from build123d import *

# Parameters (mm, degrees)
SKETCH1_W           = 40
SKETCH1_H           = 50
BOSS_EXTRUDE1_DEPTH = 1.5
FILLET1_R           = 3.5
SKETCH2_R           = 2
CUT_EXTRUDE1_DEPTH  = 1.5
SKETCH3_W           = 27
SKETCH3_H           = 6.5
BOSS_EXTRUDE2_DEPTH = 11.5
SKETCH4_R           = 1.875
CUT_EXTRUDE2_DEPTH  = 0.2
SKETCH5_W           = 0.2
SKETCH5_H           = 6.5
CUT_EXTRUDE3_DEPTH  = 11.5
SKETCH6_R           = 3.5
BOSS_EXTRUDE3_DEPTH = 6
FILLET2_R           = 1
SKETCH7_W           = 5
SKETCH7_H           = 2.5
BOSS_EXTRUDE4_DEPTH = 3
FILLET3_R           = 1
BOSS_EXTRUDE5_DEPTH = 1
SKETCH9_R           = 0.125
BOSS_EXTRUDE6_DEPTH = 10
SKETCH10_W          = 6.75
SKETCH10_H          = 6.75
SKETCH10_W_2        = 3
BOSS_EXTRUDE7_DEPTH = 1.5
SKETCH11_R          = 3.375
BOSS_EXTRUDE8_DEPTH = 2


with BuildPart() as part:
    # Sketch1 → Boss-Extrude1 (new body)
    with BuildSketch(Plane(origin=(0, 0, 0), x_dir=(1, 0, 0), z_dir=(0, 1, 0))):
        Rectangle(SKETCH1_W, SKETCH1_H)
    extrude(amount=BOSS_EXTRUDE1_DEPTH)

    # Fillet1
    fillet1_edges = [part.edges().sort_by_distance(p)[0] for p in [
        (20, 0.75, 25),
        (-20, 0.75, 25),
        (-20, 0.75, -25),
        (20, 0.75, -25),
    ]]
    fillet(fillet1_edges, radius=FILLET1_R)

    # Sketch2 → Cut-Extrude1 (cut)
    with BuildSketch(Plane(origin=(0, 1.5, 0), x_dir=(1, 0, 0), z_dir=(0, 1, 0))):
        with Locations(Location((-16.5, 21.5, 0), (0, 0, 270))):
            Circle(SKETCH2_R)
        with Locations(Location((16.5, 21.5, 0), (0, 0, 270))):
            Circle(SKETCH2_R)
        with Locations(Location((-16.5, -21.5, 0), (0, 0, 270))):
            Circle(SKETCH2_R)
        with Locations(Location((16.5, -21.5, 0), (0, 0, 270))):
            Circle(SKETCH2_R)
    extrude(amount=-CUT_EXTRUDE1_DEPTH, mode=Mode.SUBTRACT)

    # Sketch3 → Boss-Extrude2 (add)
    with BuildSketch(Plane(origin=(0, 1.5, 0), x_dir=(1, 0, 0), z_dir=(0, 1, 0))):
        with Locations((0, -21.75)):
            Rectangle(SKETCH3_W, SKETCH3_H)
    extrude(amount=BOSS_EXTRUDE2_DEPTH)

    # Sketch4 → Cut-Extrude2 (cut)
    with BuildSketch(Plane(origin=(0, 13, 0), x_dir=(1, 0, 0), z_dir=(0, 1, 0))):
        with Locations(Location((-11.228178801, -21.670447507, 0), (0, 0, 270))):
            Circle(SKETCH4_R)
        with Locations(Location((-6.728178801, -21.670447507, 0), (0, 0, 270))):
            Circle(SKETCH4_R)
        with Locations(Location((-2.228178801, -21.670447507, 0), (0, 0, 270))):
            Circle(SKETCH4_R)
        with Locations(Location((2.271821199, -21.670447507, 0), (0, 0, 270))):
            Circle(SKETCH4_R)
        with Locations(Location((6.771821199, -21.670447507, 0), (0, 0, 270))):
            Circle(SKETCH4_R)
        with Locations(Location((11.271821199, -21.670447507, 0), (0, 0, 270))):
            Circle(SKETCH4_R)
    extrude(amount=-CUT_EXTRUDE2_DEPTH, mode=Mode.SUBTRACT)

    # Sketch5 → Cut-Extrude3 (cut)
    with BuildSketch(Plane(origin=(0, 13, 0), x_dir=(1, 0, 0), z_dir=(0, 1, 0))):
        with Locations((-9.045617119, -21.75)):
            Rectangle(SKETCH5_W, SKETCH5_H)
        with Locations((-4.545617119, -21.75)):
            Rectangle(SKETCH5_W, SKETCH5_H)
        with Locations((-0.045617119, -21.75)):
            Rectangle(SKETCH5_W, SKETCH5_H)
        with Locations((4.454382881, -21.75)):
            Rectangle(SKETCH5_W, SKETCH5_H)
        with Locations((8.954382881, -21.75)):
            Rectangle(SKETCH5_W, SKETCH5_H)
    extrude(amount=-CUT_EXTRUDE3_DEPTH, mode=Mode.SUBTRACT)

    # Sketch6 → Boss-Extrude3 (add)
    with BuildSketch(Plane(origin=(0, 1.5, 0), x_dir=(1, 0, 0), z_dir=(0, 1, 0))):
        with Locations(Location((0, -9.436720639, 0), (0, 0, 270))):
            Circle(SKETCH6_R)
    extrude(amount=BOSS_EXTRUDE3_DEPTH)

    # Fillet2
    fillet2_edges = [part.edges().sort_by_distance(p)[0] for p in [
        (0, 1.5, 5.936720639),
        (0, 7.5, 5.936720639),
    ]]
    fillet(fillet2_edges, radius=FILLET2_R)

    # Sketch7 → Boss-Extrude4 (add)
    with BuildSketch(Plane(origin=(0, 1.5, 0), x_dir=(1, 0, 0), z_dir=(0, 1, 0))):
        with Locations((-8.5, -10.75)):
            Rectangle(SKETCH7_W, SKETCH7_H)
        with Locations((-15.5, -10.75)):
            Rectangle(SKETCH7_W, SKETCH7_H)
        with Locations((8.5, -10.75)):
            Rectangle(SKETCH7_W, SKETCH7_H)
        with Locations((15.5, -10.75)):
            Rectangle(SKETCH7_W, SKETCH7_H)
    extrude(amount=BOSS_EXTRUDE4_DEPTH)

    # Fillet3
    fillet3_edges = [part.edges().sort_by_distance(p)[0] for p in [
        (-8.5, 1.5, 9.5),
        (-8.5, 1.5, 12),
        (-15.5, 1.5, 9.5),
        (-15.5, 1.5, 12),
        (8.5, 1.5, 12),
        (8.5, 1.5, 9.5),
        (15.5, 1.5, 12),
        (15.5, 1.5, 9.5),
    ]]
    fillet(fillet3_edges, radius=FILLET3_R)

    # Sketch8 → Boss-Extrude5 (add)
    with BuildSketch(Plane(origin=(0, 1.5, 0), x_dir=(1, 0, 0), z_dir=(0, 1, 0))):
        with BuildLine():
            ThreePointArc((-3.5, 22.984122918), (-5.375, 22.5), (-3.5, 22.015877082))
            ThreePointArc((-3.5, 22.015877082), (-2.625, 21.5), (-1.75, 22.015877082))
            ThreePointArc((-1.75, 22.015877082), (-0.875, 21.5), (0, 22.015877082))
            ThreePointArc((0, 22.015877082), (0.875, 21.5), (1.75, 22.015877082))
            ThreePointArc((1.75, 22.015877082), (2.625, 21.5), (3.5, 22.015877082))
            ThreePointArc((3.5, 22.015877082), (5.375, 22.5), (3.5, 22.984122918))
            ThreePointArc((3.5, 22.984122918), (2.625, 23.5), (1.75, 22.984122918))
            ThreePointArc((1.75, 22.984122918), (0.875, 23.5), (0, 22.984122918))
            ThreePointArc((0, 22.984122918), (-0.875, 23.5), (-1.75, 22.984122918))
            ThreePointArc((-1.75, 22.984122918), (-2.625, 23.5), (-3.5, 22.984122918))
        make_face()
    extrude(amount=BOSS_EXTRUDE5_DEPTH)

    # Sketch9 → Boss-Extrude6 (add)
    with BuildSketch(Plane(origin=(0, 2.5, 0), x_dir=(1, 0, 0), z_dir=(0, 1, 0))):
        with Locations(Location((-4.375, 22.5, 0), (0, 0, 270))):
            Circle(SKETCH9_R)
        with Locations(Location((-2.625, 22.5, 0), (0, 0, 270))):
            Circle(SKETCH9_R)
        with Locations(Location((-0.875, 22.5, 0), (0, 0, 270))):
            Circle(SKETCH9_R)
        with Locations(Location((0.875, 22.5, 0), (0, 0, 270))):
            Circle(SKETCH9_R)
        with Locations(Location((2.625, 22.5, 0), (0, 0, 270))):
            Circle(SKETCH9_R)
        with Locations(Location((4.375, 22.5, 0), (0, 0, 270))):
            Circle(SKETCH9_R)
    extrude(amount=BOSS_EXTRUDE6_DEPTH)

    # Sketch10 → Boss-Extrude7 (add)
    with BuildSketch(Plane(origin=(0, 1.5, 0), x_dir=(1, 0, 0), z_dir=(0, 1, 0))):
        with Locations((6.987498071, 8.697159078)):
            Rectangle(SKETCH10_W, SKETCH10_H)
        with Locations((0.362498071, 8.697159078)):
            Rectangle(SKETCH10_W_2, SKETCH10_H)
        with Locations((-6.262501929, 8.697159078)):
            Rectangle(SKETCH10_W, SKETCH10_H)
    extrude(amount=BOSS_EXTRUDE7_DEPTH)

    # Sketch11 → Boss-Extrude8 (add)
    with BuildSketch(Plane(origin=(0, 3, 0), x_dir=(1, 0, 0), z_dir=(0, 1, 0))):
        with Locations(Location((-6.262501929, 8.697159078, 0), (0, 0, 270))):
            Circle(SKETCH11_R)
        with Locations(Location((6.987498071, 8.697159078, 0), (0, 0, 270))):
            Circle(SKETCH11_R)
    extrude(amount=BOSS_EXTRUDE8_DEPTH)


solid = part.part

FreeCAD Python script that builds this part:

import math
import FreeCAD as App
import Part
import Sketcher


def edges_at(feature, points):
    """Names of the edges that pass closest to the given points."""
    edges = feature.Shape.Edges
    near = lambda p: min(range(len(edges)), key=lambda i: edges[i].distToShape(Part.Vertex(*p))[0])
    return sorted({f"Edge{near(p) + 1}" for p in points})

doc = App.newDocument("Part")
body = doc.addObject("PartDesign::Body", "Body")

# Sketch on XZ plane
sketch1 = doc.addObject("Sketcher::SketchObject", "Sketch")
body.addObject(sketch1)
sketch1.AttachmentSupport = (doc.XZ_Plane, [""])
sketch1.MapMode = "FlatFace"
sketch1.addGeometry([
    Part.LineSegment(App.Vector(-20, -25, 0), App.Vector(-20, 25, 0)),
    Part.LineSegment(App.Vector(-20, 25, 0), App.Vector(20, 25, 0)),
    Part.LineSegment(App.Vector(20, 25, 0), App.Vector(20, -25, 0)),
    Part.LineSegment(App.Vector(20, -25, 0), App.Vector(-20, -25, 0)),
], False)
sketch1.addConstraint([
    Sketcher.Constraint("Coincident", 0, 2, 1, 1),
    Sketcher.Constraint("Coincident", 1, 2, 2, 1),
    Sketcher.Constraint("Coincident", 2, 2, 3, 1),
    Sketcher.Constraint("Coincident", 3, 2, 0, 1),
    Sketcher.Constraint("Vertical", 0),
    Sketcher.Constraint("Horizontal", 1),
    Sketcher.Constraint("Vertical", 2),
    Sketcher.Constraint("Horizontal", 3),
    Sketcher.Constraint("Symmetric", 0, 2, 2, 2, -1, 1),
    Sketcher.Constraint("DistanceX", 1, 1, 1, 2, 40.0),
    Sketcher.Constraint("DistanceY", 0, 1, 0, 2, 50.0),
])
pad1 = doc.addObject("PartDesign::Pad", "Pad")
body.addObject(pad1)
pad1.Profile = sketch1
pad1.Length = 1.5
pad1.Reversed = True
doc.recompute()

fillet = doc.addObject("PartDesign::Fillet", "Fillet")
body.addObject(fillet)
fillet.Base = (pad1, edges_at(pad1, [
    (20, 0.75, 25),
    (-20, 0.75, 25),
    (-20, 0.75, -25),
    (20, 0.75, -25),
]))
fillet.Radius = 3.5

# Sketch on XZ plane
sketch2 = doc.addObject("Sketcher::SketchObject", "Sketch001")
body.addObject(sketch2)
sketch2.AttachmentSupport = (doc.XZ_Plane, [""])
sketch2.MapMode = "FlatFace"
sketch2.AttachmentOffset = App.Placement(App.Vector(0, 0, -1.5), App.Rotation())
sketch2.addGeometry([
    Part.Circle(App.Vector(-16.5, -21.5, 0), App.Vector(0, 0, 1), 2),
    Part.Circle(App.Vector(16.5, -21.5, 0), App.Vector(0, 0, 1), 2),
    Part.Circle(App.Vector(-16.5, 21.5, 0), App.Vector(0, 0, 1), 2),
    Part.Circle(App.Vector(16.5, 21.5, 0), App.Vector(0, 0, 1), 2),
], False)
sketch2.addConstraint([
    Sketcher.Constraint("Equal", 0, 1),
    Sketcher.Constraint("Equal", 1, 2),
    Sketcher.Constraint("Equal", 2, 3),
    Sketcher.Constraint("Symmetric", 1, 3, 2, 3, -1, 1),
    Sketcher.Constraint("Symmetric", 0, 3, 3, 3, -1, 1),
    Sketcher.Constraint("Symmetric", 0, 3, 1, 3, -2),
    Sketcher.Constraint("Diameter", 0, 4.0),
    Sketcher.Constraint("DistanceX", 0, 3, 1, 3, 33.0),
    Sketcher.Constraint("DistanceY", 0, 3, 2, 3, 43.0),
])
pocket1 = doc.addObject("PartDesign::Pocket", "Pocket")
body.addObject(pocket1)
pocket1.Profile = sketch2
pocket1.Length = 1.5
pocket1.Reversed = True

# Sketch on XZ plane
sketch3 = doc.addObject("Sketcher::SketchObject", "Sketch002")
body.addObject(sketch3)
sketch3.AttachmentSupport = (doc.XZ_Plane, [""])
sketch3.MapMode = "FlatFace"
sketch3.AttachmentOffset = App.Placement(App.Vector(0, 0, -1.5), App.Rotation())
sketch3.addGeometry([
    Part.LineSegment(App.Vector(-14, 18, 0), App.Vector(-14, 25, 0)),
    Part.LineSegment(App.Vector(-14, 25, 0), App.Vector(14, 25, 0)),
    Part.LineSegment(App.Vector(14, 25, 0), App.Vector(14, 18, 0)),
    Part.LineSegment(App.Vector(14, 18, 0), App.Vector(-14, 18, 0)),
], False)
sketch3.addConstraint([
    Sketcher.Constraint("Coincident", 0, 2, 1, 1),
    Sketcher.Constraint("Coincident", 1, 2, 2, 1),
    Sketcher.Constraint("Coincident", 2, 2, 3, 1),
    Sketcher.Constraint("Coincident", 3, 2, 0, 1),
    Sketcher.Constraint("Vertical", 0),
    Sketcher.Constraint("Horizontal", 1),
    Sketcher.Constraint("Vertical", 2),
    Sketcher.Constraint("Horizontal", 3),
    Sketcher.Constraint("DistanceX", 1, 1, 1, 2, 27.0),
    Sketcher.Constraint("DistanceY", 0, 1, 0, 2, 6.5),
    Sketcher.Constraint("DistanceY", -1, 1, 0, 2, 25.0),
    Sketcher.Constraint("DistanceX", 0, 2, -1, 1, 13.5),
])
pad2 = doc.addObject("PartDesign::Pad", "Pad001")
body.addObject(pad2)
pad2.Profile = sketch3
pad2.Length = 11.5
pad2.Reversed = True

# Sketch on XZ plane
sketch4 = doc.addObject("Sketcher::SketchObject", "Sketch003")
body.addObject(sketch4)
sketch4.AttachmentSupport = (doc.XZ_Plane, [""])
sketch4.MapMode = "FlatFace"
sketch4.AttachmentOffset = App.Placement(App.Vector(0, 0, -13), App.Rotation())
sketch4.addGeometry([
    Part.Circle(App.Vector(-11.2, 21.7, 0), App.Vector(0, 0, 1), 1.9),  # 0
    Part.Circle(App.Vector(-6.7, 21.7, 0), App.Vector(0, 0, 1), 1.9),  # 1
    Part.Circle(App.Vector(-2.2, 21.7, 0), App.Vector(0, 0, 1), 1.9),  # 2
    Part.Circle(App.Vector(2.3, 21.7, 0), App.Vector(0, 0, 1), 1.9),  # 3
    Part.Circle(App.Vector(6.8, 21.7, 0), App.Vector(0, 0, 1), 1.9),  # 4
    Part.Circle(App.Vector(11.3, 21.7, 0), App.Vector(0, 0, 1), 1.9),  # 5
], False)
sketch4.addConstraint([
    Sketcher.Constraint("Equal", 0, 1),
    Sketcher.Constraint("Equal", 1, 2),
    Sketcher.Constraint("Equal", 2, 3),
    Sketcher.Constraint("Equal", 3, 4),
    Sketcher.Constraint("Equal", 4, 5),
    Sketcher.Constraint("Horizontal", 0, 3, 1, 3),
    Sketcher.Constraint("Horizontal", 1, 3, 2, 3),
    Sketcher.Constraint("Horizontal", 2, 3, 3, 3),
    Sketcher.Constraint("Horizontal", 3, 3, 4, 3),
    Sketcher.Constraint("Horizontal", 4, 3, 5, 3),
    Sketcher.Constraint("Diameter", 0, 3.75),
    Sketcher.Constraint("DistanceX", 0, 3, 2, 3, 9.0),
    Sketcher.Constraint("DistanceX", 1, 3, 3, 3, 9.0),
    Sketcher.Constraint("DistanceX", 2, 3, 4, 3, 9.0),
    Sketcher.Constraint("DistanceX", 3, 3, 5, 3, 9.0),
    Sketcher.Constraint("DistanceX", 0, 3, 1, 3, 4.5),
    Sketcher.Constraint("DistanceX", 0, 3, -1, 1, 11.228179),
    Sketcher.Constraint("DistanceY", -1, 1, 0, 3, 21.670448),
])
pocket2 = doc.addObject("PartDesign::Pocket", "Pocket001")
body.addObject(pocket2)
pocket2.Profile = sketch4
pocket2.Length = 0.2
pocket2.Reversed = True

# Sketch on XZ plane
sketch5 = doc.addObject("Sketcher::SketchObject", "Sketch004")
body.addObject(sketch5)
sketch5.AttachmentSupport = (doc.XZ_Plane, [""])
sketch5.MapMode = "FlatFace"
sketch5.AttachmentOffset = App.Placement(App.Vector(0, 0, -13), App.Rotation())
sketch5.addGeometry([
    Part.LineSegment(App.Vector(-9.15, 18.5, 0), App.Vector(-9.15, 25, 0)),  # 0
    Part.LineSegment(App.Vector(-9.15, 25, 0), App.Vector(-8.95, 25, 0)),  # 1
    Part.LineSegment(App.Vector(-8.95, 25, 0), App.Vector(-8.95, 18.5, 0)),  # 2
    Part.LineSegment(App.Vector(-8.95, 18.5, 0), App.Vector(-9.15, 18.5, 0)),  # 3
    Part.LineSegment(App.Vector(-4.65, 18.5, 0), App.Vector(-4.65, 25, 0)),  # 4
    Part.LineSegment(App.Vector(-4.65, 25, 0), App.Vector(-4.45, 25, 0)),  # 5
    Part.LineSegment(App.Vector(-4.45, 25, 0), App.Vector(-4.45, 18.5, 0)),  # 6
    Part.LineSegment(App.Vector(-4.45, 18.5, 0), App.Vector(-4.65, 18.5, 0)),  # 7
    Part.LineSegment(App.Vector(-0.15, 18.5, 0), App.Vector(-0.15, 25, 0)),  # 8
    Part.LineSegment(App.Vector(-0.15, 25, 0), App.Vector(0.05, 25, 0)),  # 9
    Part.LineSegment(App.Vector(0.05, 25, 0), App.Vector(0.05, 18.5, 0)),  # 10
    Part.LineSegment(App.Vector(0.05, 18.5, 0), App.Vector(-0.15, 18.5, 0)),  # 11
    Part.LineSegment(App.Vector(4.35, 18.5, 0), App.Vector(4.35, 25, 0)),  # 12
    Part.LineSegment(App.Vector(4.35, 25, 0), App.Vector(4.55, 25, 0)),  # 13
    Part.LineSegment(App.Vector(4.55, 25, 0), App.Vector(4.55, 18.5, 0)),  # 14
    Part.LineSegment(App.Vector(4.55, 18.5, 0), App.Vector(4.35, 18.5, 0)),  # 15
    Part.LineSegment(App.Vector(8.85, 18.5, 0), App.Vector(8.85, 25, 0)),  # 16
    Part.LineSegment(App.Vector(8.85, 25, 0), App.Vector(9.05, 25, 0)),  # 17
    Part.LineSegment(App.Vector(9.05, 25, 0), App.Vector(9.05, 18.5, 0)),  # 18
    Part.LineSegment(App.Vector(9.05, 18.5, 0), App.Vector(8.85, 18.5, 0)),  # 19
], False)
sketch5.addConstraint([
    Sketcher.Constraint("Coincident", 0, 2, 1, 1),
    Sketcher.Constraint("Coincident", 1, 2, 2, 1),
    Sketcher.Constraint("Coincident", 2, 2, 3, 1),
    Sketcher.Constraint("Coincident", 3, 2, 0, 1),
    Sketcher.Constraint("Coincident", 4, 2, 5, 1),
    Sketcher.Constraint("Coincident", 5, 2, 6, 1),
    Sketcher.Constraint("Coincident", 6, 2, 7, 1),
    Sketcher.Constraint("Coincident", 7, 2, 4, 1),
    Sketcher.Constraint("Coincident", 8, 2, 9, 1),
    Sketcher.Constraint("Coincident", 9, 2, 10, 1),
    Sketcher.Constraint("Coincident", 10, 2, 11, 1),
    Sketcher.Constraint("Coincident", 11, 2, 8, 1),
    Sketcher.Constraint("Coincident", 12, 2, 13, 1),
    Sketcher.Constraint("Coincident", 13, 2, 14, 1),
    Sketcher.Constraint("Coincident", 14, 2, 15, 1),
    Sketcher.Constraint("Coincident", 15, 2, 12, 1),
    Sketcher.Constraint("Coincident", 16, 2, 17, 1),
    Sketcher.Constraint("Coincident", 17, 2, 18, 1),
    Sketcher.Constraint("Coincident", 18, 2, 19, 1),
    Sketcher.Constraint("Coincident", 19, 2, 16, 1),
    Sketcher.Constraint("Vertical", 0),
    Sketcher.Constraint("Horizontal", 1),
    Sketcher.Constraint("Vertical", 2),
    Sketcher.Constraint("Horizontal", 3),
    Sketcher.Constraint("Vertical", 4),
    Sketcher.Constraint("Horizontal", 5),
    Sketcher.Constraint("Vertical", 6),
    Sketcher.Constraint("Horizontal", 7),
    Sketcher.Constraint("Vertical", 8),
    Sketcher.Constraint("Horizontal", 9),
    Sketcher.Constraint("Vertical", 10),
    Sketcher.Constraint("Horizontal", 11),
    Sketcher.Constraint("Vertical", 12),
    Sketcher.Constraint("Horizontal", 13),
    Sketcher.Constraint("Vertical", 14),
    Sketcher.Constraint("Horizontal", 15),
    Sketcher.Constraint("Vertical", 16),
    Sketcher.Constraint("Horizontal", 17),
    Sketcher.Constraint("Vertical", 18),
    Sketcher.Constraint("Horizontal", 19),
    Sketcher.Constraint("Horizontal", 1, 2, 4, 2),
    Sketcher.Constraint("Horizontal", 3, 2, 6, 2),
    Sketcher.Constraint("Horizontal", 5, 2, 8, 2),
    Sketcher.Constraint("Horizontal", 7, 2, 10, 2),
    Sketcher.Constraint("Horizontal", 9, 2, 12, 2),
    Sketcher.Constraint("Horizontal", 11, 2, 14, 2),
    Sketcher.Constraint("Horizontal", 13, 2, 16, 2),
    Sketcher.Constraint("Horizontal", 15, 2, 18, 2),
    Sketcher.Constraint("Equal", 3, 5),
    Sketcher.Constraint("Equal", 7, 9),
    Sketcher.Constraint("Equal", 11, 13),
    Sketcher.Constraint("Equal", 15, 17),
    Sketcher.Constraint("DistanceX", 1, 1, 1, 2, 0.2),
    Sketcher.Constraint("DistanceY", 0, 1, 0, 2, 6.5),
    Sketcher.Constraint("DistanceY", -1, 1, 0, 2, 25.0),
    Sketcher.Constraint("DistanceX", 1, 2, 4, 2, 4.3),
    Sketcher.Constraint("DistanceX", 5, 2, 8, 2, 4.3),
    Sketcher.Constraint("DistanceX", 9, 2, 12, 2, 4.3),
    Sketcher.Constraint("DistanceX", 13, 2, 16, 2, 4.3),
    Sketcher.Constraint("DistanceX", 0, 2, -1, 1, 9.145617),
])
pocket3 = doc.addObject("PartDesign::Pocket", "Pocket002")
body.addObject(pocket3)
pocket3.Profile = sketch5
pocket3.Length = 11.5
pocket3.Reversed = True

# Sketch on XZ plane
sketch6 = doc.addObject("Sketcher::SketchObject", "Sketch005")
body.addObject(sketch6)
sketch6.AttachmentSupport = (doc.XZ_Plane, [""])
sketch6.MapMode = "FlatFace"
sketch6.AttachmentOffset = App.Placement(App.Vector(0, 0, -1.5), App.Rotation())
sketch6.addGeometry(Part.Circle(App.Vector(0, 9.4, 0), App.Vector(0, 0, 1), 3.5), False)
sketch6.addConstraint([
    Sketcher.Constraint("PointOnObject", 0, 3, -2),
    Sketcher.Constraint("Diameter", 0, 7.0),
    Sketcher.Constraint("DistanceY", -1, 1, 0, 3, 9.436721),
])
pad3 = doc.addObject("PartDesign::Pad", "Pad002")
body.addObject(pad3)
pad3.Profile = sketch6
pad3.Length = 6
pad3.Reversed = True
doc.recompute()

fillet2 = doc.addObject("PartDesign::Fillet", "Fillet001")
body.addObject(fillet2)
fillet2.Base = (pad3, edges_at(pad3, [(0, 1.5, 5.937), (0, 7.5, 5.937)]))
fillet2.Radius = 1

# Sketch on XZ plane
sketch7 = doc.addObject("Sketcher::SketchObject", "Sketch006")
body.addObject(sketch7)
sketch7.AttachmentSupport = (doc.XZ_Plane, [""])
sketch7.MapMode = "FlatFace"
sketch7.AttachmentOffset = App.Placement(App.Vector(0, 0, -1.5), App.Rotation())
sketch7.addGeometry([
    Part.LineSegment(App.Vector(-11, 9.5, 0), App.Vector(-11, 12, 0)),  # 0
    Part.LineSegment(App.Vector(-11, 12, 0), App.Vector(-6, 12, 0)),  # 1
    Part.LineSegment(App.Vector(-6, 12, 0), App.Vector(-6, 9.5, 0)),  # 2
    Part.LineSegment(App.Vector(-6, 9.5, 0), App.Vector(-11, 9.5, 0)),  # 3
    Part.LineSegment(App.Vector(-18, 9.5, 0), App.Vector(-18, 12, 0)),  # 4
    Part.LineSegment(App.Vector(-18, 12, 0), App.Vector(-13, 12, 0)),  # 5
    Part.LineSegment(App.Vector(-13, 12, 0), App.Vector(-13, 9.5, 0)),  # 6
    Part.LineSegment(App.Vector(-13, 9.5, 0), App.Vector(-18, 9.5, 0)),  # 7
    Part.LineSegment(App.Vector(6, 9.5, 0), App.Vector(6, 12, 0)),  # 8
    Part.LineSegment(App.Vector(6, 12, 0), App.Vector(11, 12, 0)),  # 9
    Part.LineSegment(App.Vector(11, 12, 0), App.Vector(11, 9.5, 0)),  # 10
    Part.LineSegment(App.Vector(11, 9.5, 0), App.Vector(6, 9.5, 0)),  # 11
    Part.LineSegment(App.Vector(13, 9.5, 0), App.Vector(13, 12, 0)),  # 12
    Part.LineSegment(App.Vector(13, 12, 0), App.Vector(18, 12, 0)),  # 13
    Part.LineSegment(App.Vector(18, 12, 0), App.Vector(18, 9.5, 0)),  # 14
    Part.LineSegment(App.Vector(18, 9.5, 0), App.Vector(13, 9.5, 0)),  # 15
], False)
sketch7.addConstraint([
    Sketcher.Constraint("Coincident", 0, 2, 1, 1),
    Sketcher.Constraint("Coincident", 1, 2, 2, 1),
    Sketcher.Constraint("Coincident", 2, 2, 3, 1),
    Sketcher.Constraint("Coincident", 3, 2, 0, 1),
    Sketcher.Constraint("Coincident", 4, 2, 5, 1),
    Sketcher.Constraint("Coincident", 5, 2, 6, 1),
    Sketcher.Constraint("Coincident", 6, 2, 7, 1),
    Sketcher.Constraint("Coincident", 7, 2, 4, 1),
    Sketcher.Constraint("Coincident", 8, 2, 9, 1),
    Sketcher.Constraint("Coincident", 9, 2, 10, 1),
    Sketcher.Constraint("Coincident", 10, 2, 11, 1),
    Sketcher.Constraint("Coincident", 11, 2, 8, 1),
    Sketcher.Constraint("Coincident", 12, 2, 13, 1),
    Sketcher.Constraint("Coincident", 13, 2, 14, 1),
    Sketcher.Constraint("Coincident", 14, 2, 15, 1),
    Sketcher.Constraint("Coincident", 15, 2, 12, 1),
    Sketcher.Constraint("Vertical", 0),
    Sketcher.Constraint("Horizontal", 1),
    Sketcher.Constraint("Vertical", 2),
    Sketcher.Constraint("Horizontal", 3),
    Sketcher.Constraint("Vertical", 4),
    Sketcher.Constraint("Horizontal", 5),
    Sketcher.Constraint("Vertical", 6),
    Sketcher.Constraint("Horizontal", 7),
    Sketcher.Constraint("Vertical", 8),
    Sketcher.Constraint("Horizontal", 9),
    Sketcher.Constraint("Vertical", 10),
    Sketcher.Constraint("Horizontal", 11),
    Sketcher.Constraint("Vertical", 12),
    Sketcher.Constraint("Horizontal", 13),
    Sketcher.Constraint("Vertical", 14),
    Sketcher.Constraint("Horizontal", 15),
    Sketcher.Constraint("Symmetric", 1, 2, 8, 2, -2),
    Sketcher.Constraint("Symmetric", 3, 2, 10, 2, -2),
    Sketcher.Constraint("Symmetric", 5, 2, 12, 2, -2),
    Sketcher.Constraint("Symmetric", 7, 2, 14, 2, -2),
    Sketcher.Constraint("Horizontal", 1, 2, 4, 2),
    Sketcher.Constraint("Horizontal", 3, 2, 6, 2),
    Sketcher.Constraint("Equal", 3, 5),
    Sketcher.Constraint("DistanceX", 1, 1, 1, 2, 5.0),
    Sketcher.Constraint("DistanceY", 0, 1, 0, 2, 2.5),
    Sketcher.Constraint("DistanceX", 0, 2, -1, 1, 11.0),
    Sketcher.Constraint("DistanceY", -1, 1, 0, 2, 12.0),
    Sketcher.Constraint("DistanceX", 4, 2, -1, 1, 18.0),
])
pad4 = doc.addObject("PartDesign::Pad", "Pad003")
body.addObject(pad4)
pad4.Profile = sketch7
pad4.Length = 3
pad4.Reversed = True
doc.recompute()

fillet3 = doc.addObject("PartDesign::Fillet", "Fillet002")
body.addObject(fillet3)
fillet3.Base = (pad4, edges_at(pad4, [
    (-8.5, 1.5, 9.5),
    (-8.5, 1.5, 12),
    (-15.5, 1.5, 9.5),
    (-15.5, 1.5, 12),
    (8.5, 1.5, 12),
    (8.5, 1.5, 9.5),
    (15.5, 1.5, 12),
    (15.5, 1.5, 9.5),
]))
fillet3.Radius = 1

# Sketch on XZ plane
sketch8 = doc.addObject("Sketcher::SketchObject", "Sketch007")
body.addObject(sketch8)
sketch8.AttachmentSupport = (doc.XZ_Plane, [""])
sketch8.MapMode = "FlatFace"
sketch8.AttachmentOffset = App.Placement(App.Vector(0, 0, -1.5), App.Rotation())
sketch8.addGeometry([
    Part.ArcOfCircle(Part.Circle(App.Vector(-4.4, -22.5, 0), App.Vector(0, 0, 1), 1), math.radians(29), math.radians(331)),  # 0
    Part.ArcOfCircle(Part.Circle(App.Vector(-2.6, -22.5, 0), App.Vector(0, 0, 1), 1), math.radians(29), math.radians(151)),  # 1
    Part.ArcOfCircle(Part.Circle(App.Vector(-0.9, -22.5, 0), App.Vector(0, 0, 1), 1), math.radians(29), math.radians(151)),  # 2
    Part.ArcOfCircle(Part.Circle(App.Vector(0.9, -22.5, 0), App.Vector(0, 0, 1), 1), math.radians(29), math.radians(151)),  # 3
    Part.ArcOfCircle(Part.Circle(App.Vector(2.6, -22.5, 0), App.Vector(0, 0, 1), 1), math.radians(29), math.radians(151)),  # 4
    Part.ArcOfCircle(Part.Circle(App.Vector(4.4, -22.5, 0), App.Vector(0, 0, 1), 1), math.radians(-151), math.radians(151)),  # 5
    Part.ArcOfCircle(Part.Circle(App.Vector(2.6, -22.5, 0), App.Vector(0, 0, 1), 1), math.radians(-151), math.radians(-29)),  # 6
    Part.ArcOfCircle(Part.Circle(App.Vector(0.9, -22.5, 0), App.Vector(0, 0, 1), 1), math.radians(-151), math.radians(-29)),  # 7
    Part.ArcOfCircle(Part.Circle(App.Vector(-0.9, -22.5, 0), App.Vector(0, 0, 1), 1), math.radians(-151), math.radians(-29)),  # 8
    Part.ArcOfCircle(Part.Circle(App.Vector(-2.6, -22.5, 0), App.Vector(0, 0, 1), 1), math.radians(-151), math.radians(-29)),  # 9
], False)
sketch8.addConstraint([
    Sketcher.Constraint("Coincident", 0, 1, 1, 2),
    Sketcher.Constraint("Coincident", 1, 1, 2, 2),
    Sketcher.Constraint("Coincident", 2, 1, 3, 2),
    Sketcher.Constraint("Coincident", 3, 1, 4, 2),
    Sketcher.Constraint("Coincident", 4, 1, 5, 2),
    Sketcher.Constraint("Coincident", 5, 1, 6, 2),
    Sketcher.Constraint("Coincident", 6, 1, 7, 2),
    Sketcher.Constraint("Coincident", 7, 1, 8, 2),
    Sketcher.Constraint("Coincident", 8, 1, 9, 2),
    Sketcher.Constraint("Coincident", 9, 1, 0, 2),
    Sketcher.Constraint("Coincident", 6, 3, 4, 3),
    Sketcher.Constraint("Coincident", 7, 3, 3, 3),
    Sketcher.Constraint("Coincident", 8, 3, 2, 3),
    Sketcher.Constraint("Coincident", 9, 3, 1, 3),
    Sketcher.Constraint("Equal", 0, 1),
    Sketcher.Constraint("Equal", 1, 2),
    Sketcher.Constraint("Equal", 2, 3),
    Sketcher.Constraint("Equal", 3, 4),
    Sketcher.Constraint("Equal", 4, 5),
    Sketcher.Constraint("Equal", 5, 6),
    Sketcher.Constraint("Equal", 6, 7),
    Sketcher.Constraint("Equal", 7, 8),
    Sketcher.Constraint("Equal", 8, 9),
    Sketcher.Constraint("Symmetric", 2, 3, 3, 3, -2),
    Sketcher.Constraint("Symmetric", 1, 3, 4, 3, -2),
    Sketcher.Constraint("Symmetric", 0, 3, 5, 3, -2),
    Sketcher.Constraint("Horizontal", 0, 3, 1, 3),
    Sketcher.Constraint("Horizontal", 1, 3, 2, 3),
    Sketcher.Constraint("Horizontal", 0, 1, 1, 1),
    Sketcher.Constraint("Horizontal", 1, 1, 2, 1),
    Sketcher.Constraint("Radius", 0, 1.0),
    Sketcher.Constraint("DistanceX", 0, 3, 4, 3, 7.0),
    Sketcher.Constraint("DistanceY", 0, 3, -1, 1, 22.5),
])
pad5 = doc.addObject("PartDesign::Pad", "Pad004")
body.addObject(pad5)
pad5.Profile = sketch8
pad5.Length = 1
pad5.Reversed = True

# Sketch on XZ plane
sketch9 = doc.addObject("Sketcher::SketchObject", "Sketch008")
body.addObject(sketch9)
sketch9.AttachmentSupport = (doc.XZ_Plane, [""])
sketch9.MapMode = "FlatFace"
sketch9.AttachmentOffset = App.Placement(App.Vector(0, 0, -2.5), App.Rotation())
sketch9.addGeometry([
    Part.Circle(App.Vector(-4.38, -22.5, 0), App.Vector(0, 0, 1), 0.12),  # 0
    Part.Circle(App.Vector(-2.62, -22.5, 0), App.Vector(0, 0, 1), 0.12),  # 1
    Part.Circle(App.Vector(-0.88, -22.5, 0), App.Vector(0, 0, 1), 0.12),  # 2
    Part.Circle(App.Vector(0.88, -22.5, 0), App.Vector(0, 0, 1), 0.12),  # 3
    Part.Circle(App.Vector(2.62, -22.5, 0), App.Vector(0, 0, 1), 0.12),  # 4
    Part.Circle(App.Vector(4.38, -22.5, 0), App.Vector(0, 0, 1), 0.12),  # 5
], False)
sketch9.addConstraint([
    Sketcher.Constraint("Equal", 0, 1),
    Sketcher.Constraint("Equal", 1, 2),
    Sketcher.Constraint("Equal", 2, 3),
    Sketcher.Constraint("Equal", 3, 4),
    Sketcher.Constraint("Equal", 4, 5),
    Sketcher.Constraint("Symmetric", 2, 3, 3, 3, -2),
    Sketcher.Constraint("Symmetric", 1, 3, 4, 3, -2),
    Sketcher.Constraint("Symmetric", 0, 3, 5, 3, -2),
    Sketcher.Constraint("Horizontal", 0, 3, 1, 3),
    Sketcher.Constraint("Horizontal", 1, 3, 2, 3),
    Sketcher.Constraint("Diameter", 0, 0.25),
    Sketcher.Constraint("DistanceX", 0, 3, 4, 3, 7.0),
    Sketcher.Constraint("DistanceY", 0, 3, -1, 1, 22.5),
    Sketcher.Constraint("DistanceX", 0, 3, 2, 3, 3.5),
    Sketcher.Constraint("DistanceX", 0, 3, 1, 3, 1.75),
])
pad6 = doc.addObject("PartDesign::Pad", "Pad005")
body.addObject(pad6)
pad6.Profile = sketch9
pad6.Length = 10
pad6.Reversed = True

# Sketch on XZ plane
sketch10 = doc.addObject("Sketcher::SketchObject", "Sketch009")
body.addObject(sketch10)
sketch10.AttachmentSupport = (doc.XZ_Plane, [""])
sketch10.MapMode = "FlatFace"
sketch10.AttachmentOffset = App.Placement(App.Vector(0, 0, -1.5), App.Rotation())
sketch10.addGeometry([
    Part.LineSegment(App.Vector(3.6, -12.1, 0), App.Vector(3.6, -5.3, 0)),  # 0
    Part.LineSegment(App.Vector(3.6, -5.3, 0), App.Vector(10.4, -5.3, 0)),  # 1
    Part.LineSegment(App.Vector(10.4, -5.3, 0), App.Vector(10.4, -12.1, 0)),  # 2
    Part.LineSegment(App.Vector(10.4, -12.1, 0), App.Vector(3.6, -12.1, 0)),  # 3
    Part.LineSegment(App.Vector(-1.1, -12.1, 0), App.Vector(-1.1, -5.3, 0)),  # 4
    Part.LineSegment(App.Vector(-1.1, -5.3, 0), App.Vector(1.9, -5.3, 0)),  # 5
    Part.LineSegment(App.Vector(1.9, -5.3, 0), App.Vector(1.9, -12.1, 0)),  # 6
    Part.LineSegment(App.Vector(1.9, -12.1, 0), App.Vector(-1.1, -12.1, 0)),  # 7
    Part.LineSegment(App.Vector(-9.6, -12.1, 0), App.Vector(-9.6, -5.3, 0)),  # 8
    Part.LineSegment(App.Vector(-9.6, -5.3, 0), App.Vector(-2.9, -5.3, 0)),  # 9
    Part.LineSegment(App.Vector(-2.9, -5.3, 0), App.Vector(-2.9, -12.1, 0)),  # 10
    Part.LineSegment(App.Vector(-2.9, -12.1, 0), App.Vector(-9.6, -12.1, 0)),  # 11
], False)
sketch10.addConstraint([
    Sketcher.Constraint("Coincident", 0, 2, 1, 1),
    Sketcher.Constraint("Coincident", 1, 2, 2, 1),
    Sketcher.Constraint("Coincident", 2, 2, 3, 1),
    Sketcher.Constraint("Coincident", 3, 2, 0, 1),
    Sketcher.Constraint("Coincident", 4, 2, 5, 1),
    Sketcher.Constraint("Coincident", 5, 2, 6, 1),
    Sketcher.Constraint("Coincident", 6, 2, 7, 1),
    Sketcher.Constraint("Coincident", 7, 2, 4, 1),
    Sketcher.Constraint("Coincident", 8, 2, 9, 1),
    Sketcher.Constraint("Coincident", 9, 2, 10, 1),
    Sketcher.Constraint("Coincident", 10, 2, 11, 1),
    Sketcher.Constraint("Coincident", 11, 2, 8, 1),
    Sketcher.Constraint("Vertical", 0),
    Sketcher.Constraint("Horizontal", 1),
    Sketcher.Constraint("Vertical", 2),
    Sketcher.Constraint("Horizontal", 3),
    Sketcher.Constraint("Vertical", 4),
    Sketcher.Constraint("Horizontal", 5),
    Sketcher.Constraint("Vertical", 6),
    Sketcher.Constraint("Horizontal", 7),
    Sketcher.Constraint("Vertical", 8),
    Sketcher.Constraint("Horizontal", 9),
    Sketcher.Constraint("Vertical", 10),
    Sketcher.Constraint("Horizontal", 11),
    Sketcher.Constraint("Horizontal", 1, 2, 4, 2),
    Sketcher.Constraint("Horizontal", 3, 2, 6, 2),
    Sketcher.Constraint("Horizontal", 5, 2, 8, 2),
    Sketcher.Constraint("Horizontal", 7, 2, 10, 2),
    Sketcher.Constraint("Equal", 3, 9),
    Sketcher.Constraint("Equal", 11, 0),
    Sketcher.Constraint("DistanceX", 5, 1, 5, 2, 3.0),
    Sketcher.Constraint("DistanceX", 1, 1, 1, 2, 6.75),
    Sketcher.Constraint("DistanceX", 4, 2, 1, 2, 11.5),
    Sketcher.Constraint("DistanceX", 8, 2, 4, 2, 8.5),
    Sketcher.Constraint("DistanceX", -1, 1, 0, 2, 3.612498),
    Sketcher.Constraint("DistanceY", 0, 2, -1, 1, 5.322159),
])
pad7 = doc.addObject("PartDesign::Pad", "Pad006")
body.addObject(pad7)
pad7.Profile = sketch10
pad7.Length = 1.5
pad7.Reversed = True

# Sketch on XZ plane
sketch11 = doc.addObject("Sketcher::SketchObject", "Sketch010")
body.addObject(sketch11)
sketch11.AttachmentSupport = (doc.XZ_Plane, [""])
sketch11.MapMode = "FlatFace"
sketch11.AttachmentOffset = App.Placement(App.Vector(0, 0, -3), App.Rotation())
sketch11.addGeometry([
    Part.Circle(App.Vector(-6.3, -8.7, 0), App.Vector(0, 0, 1), 3.4),
    Part.Circle(App.Vector(7, -8.7, 0), App.Vector(0, 0, 1), 3.4),
], False)
sketch11.addConstraint([
    Sketcher.Constraint("Equal", 0, 1),
    Sketcher.Constraint("Horizontal", 0, 3, 1, 3),
    Sketcher.Constraint("Diameter", 0, 6.75),
    Sketcher.Constraint("DistanceX", 0, 3, 1, 3, 13.25),
    Sketcher.Constraint("DistanceX", 0, 3, -1, 1, 6.262502),
    Sketcher.Constraint("DistanceY", 0, 3, -1, 1, 8.697159),
])
pad8 = doc.addObject("PartDesign::Pad", "Pad007")
body.addObject(pad8)
pad8.Profile = sketch11
pad8.Length = 2
pad8.Reversed = True

doc.recompute()
